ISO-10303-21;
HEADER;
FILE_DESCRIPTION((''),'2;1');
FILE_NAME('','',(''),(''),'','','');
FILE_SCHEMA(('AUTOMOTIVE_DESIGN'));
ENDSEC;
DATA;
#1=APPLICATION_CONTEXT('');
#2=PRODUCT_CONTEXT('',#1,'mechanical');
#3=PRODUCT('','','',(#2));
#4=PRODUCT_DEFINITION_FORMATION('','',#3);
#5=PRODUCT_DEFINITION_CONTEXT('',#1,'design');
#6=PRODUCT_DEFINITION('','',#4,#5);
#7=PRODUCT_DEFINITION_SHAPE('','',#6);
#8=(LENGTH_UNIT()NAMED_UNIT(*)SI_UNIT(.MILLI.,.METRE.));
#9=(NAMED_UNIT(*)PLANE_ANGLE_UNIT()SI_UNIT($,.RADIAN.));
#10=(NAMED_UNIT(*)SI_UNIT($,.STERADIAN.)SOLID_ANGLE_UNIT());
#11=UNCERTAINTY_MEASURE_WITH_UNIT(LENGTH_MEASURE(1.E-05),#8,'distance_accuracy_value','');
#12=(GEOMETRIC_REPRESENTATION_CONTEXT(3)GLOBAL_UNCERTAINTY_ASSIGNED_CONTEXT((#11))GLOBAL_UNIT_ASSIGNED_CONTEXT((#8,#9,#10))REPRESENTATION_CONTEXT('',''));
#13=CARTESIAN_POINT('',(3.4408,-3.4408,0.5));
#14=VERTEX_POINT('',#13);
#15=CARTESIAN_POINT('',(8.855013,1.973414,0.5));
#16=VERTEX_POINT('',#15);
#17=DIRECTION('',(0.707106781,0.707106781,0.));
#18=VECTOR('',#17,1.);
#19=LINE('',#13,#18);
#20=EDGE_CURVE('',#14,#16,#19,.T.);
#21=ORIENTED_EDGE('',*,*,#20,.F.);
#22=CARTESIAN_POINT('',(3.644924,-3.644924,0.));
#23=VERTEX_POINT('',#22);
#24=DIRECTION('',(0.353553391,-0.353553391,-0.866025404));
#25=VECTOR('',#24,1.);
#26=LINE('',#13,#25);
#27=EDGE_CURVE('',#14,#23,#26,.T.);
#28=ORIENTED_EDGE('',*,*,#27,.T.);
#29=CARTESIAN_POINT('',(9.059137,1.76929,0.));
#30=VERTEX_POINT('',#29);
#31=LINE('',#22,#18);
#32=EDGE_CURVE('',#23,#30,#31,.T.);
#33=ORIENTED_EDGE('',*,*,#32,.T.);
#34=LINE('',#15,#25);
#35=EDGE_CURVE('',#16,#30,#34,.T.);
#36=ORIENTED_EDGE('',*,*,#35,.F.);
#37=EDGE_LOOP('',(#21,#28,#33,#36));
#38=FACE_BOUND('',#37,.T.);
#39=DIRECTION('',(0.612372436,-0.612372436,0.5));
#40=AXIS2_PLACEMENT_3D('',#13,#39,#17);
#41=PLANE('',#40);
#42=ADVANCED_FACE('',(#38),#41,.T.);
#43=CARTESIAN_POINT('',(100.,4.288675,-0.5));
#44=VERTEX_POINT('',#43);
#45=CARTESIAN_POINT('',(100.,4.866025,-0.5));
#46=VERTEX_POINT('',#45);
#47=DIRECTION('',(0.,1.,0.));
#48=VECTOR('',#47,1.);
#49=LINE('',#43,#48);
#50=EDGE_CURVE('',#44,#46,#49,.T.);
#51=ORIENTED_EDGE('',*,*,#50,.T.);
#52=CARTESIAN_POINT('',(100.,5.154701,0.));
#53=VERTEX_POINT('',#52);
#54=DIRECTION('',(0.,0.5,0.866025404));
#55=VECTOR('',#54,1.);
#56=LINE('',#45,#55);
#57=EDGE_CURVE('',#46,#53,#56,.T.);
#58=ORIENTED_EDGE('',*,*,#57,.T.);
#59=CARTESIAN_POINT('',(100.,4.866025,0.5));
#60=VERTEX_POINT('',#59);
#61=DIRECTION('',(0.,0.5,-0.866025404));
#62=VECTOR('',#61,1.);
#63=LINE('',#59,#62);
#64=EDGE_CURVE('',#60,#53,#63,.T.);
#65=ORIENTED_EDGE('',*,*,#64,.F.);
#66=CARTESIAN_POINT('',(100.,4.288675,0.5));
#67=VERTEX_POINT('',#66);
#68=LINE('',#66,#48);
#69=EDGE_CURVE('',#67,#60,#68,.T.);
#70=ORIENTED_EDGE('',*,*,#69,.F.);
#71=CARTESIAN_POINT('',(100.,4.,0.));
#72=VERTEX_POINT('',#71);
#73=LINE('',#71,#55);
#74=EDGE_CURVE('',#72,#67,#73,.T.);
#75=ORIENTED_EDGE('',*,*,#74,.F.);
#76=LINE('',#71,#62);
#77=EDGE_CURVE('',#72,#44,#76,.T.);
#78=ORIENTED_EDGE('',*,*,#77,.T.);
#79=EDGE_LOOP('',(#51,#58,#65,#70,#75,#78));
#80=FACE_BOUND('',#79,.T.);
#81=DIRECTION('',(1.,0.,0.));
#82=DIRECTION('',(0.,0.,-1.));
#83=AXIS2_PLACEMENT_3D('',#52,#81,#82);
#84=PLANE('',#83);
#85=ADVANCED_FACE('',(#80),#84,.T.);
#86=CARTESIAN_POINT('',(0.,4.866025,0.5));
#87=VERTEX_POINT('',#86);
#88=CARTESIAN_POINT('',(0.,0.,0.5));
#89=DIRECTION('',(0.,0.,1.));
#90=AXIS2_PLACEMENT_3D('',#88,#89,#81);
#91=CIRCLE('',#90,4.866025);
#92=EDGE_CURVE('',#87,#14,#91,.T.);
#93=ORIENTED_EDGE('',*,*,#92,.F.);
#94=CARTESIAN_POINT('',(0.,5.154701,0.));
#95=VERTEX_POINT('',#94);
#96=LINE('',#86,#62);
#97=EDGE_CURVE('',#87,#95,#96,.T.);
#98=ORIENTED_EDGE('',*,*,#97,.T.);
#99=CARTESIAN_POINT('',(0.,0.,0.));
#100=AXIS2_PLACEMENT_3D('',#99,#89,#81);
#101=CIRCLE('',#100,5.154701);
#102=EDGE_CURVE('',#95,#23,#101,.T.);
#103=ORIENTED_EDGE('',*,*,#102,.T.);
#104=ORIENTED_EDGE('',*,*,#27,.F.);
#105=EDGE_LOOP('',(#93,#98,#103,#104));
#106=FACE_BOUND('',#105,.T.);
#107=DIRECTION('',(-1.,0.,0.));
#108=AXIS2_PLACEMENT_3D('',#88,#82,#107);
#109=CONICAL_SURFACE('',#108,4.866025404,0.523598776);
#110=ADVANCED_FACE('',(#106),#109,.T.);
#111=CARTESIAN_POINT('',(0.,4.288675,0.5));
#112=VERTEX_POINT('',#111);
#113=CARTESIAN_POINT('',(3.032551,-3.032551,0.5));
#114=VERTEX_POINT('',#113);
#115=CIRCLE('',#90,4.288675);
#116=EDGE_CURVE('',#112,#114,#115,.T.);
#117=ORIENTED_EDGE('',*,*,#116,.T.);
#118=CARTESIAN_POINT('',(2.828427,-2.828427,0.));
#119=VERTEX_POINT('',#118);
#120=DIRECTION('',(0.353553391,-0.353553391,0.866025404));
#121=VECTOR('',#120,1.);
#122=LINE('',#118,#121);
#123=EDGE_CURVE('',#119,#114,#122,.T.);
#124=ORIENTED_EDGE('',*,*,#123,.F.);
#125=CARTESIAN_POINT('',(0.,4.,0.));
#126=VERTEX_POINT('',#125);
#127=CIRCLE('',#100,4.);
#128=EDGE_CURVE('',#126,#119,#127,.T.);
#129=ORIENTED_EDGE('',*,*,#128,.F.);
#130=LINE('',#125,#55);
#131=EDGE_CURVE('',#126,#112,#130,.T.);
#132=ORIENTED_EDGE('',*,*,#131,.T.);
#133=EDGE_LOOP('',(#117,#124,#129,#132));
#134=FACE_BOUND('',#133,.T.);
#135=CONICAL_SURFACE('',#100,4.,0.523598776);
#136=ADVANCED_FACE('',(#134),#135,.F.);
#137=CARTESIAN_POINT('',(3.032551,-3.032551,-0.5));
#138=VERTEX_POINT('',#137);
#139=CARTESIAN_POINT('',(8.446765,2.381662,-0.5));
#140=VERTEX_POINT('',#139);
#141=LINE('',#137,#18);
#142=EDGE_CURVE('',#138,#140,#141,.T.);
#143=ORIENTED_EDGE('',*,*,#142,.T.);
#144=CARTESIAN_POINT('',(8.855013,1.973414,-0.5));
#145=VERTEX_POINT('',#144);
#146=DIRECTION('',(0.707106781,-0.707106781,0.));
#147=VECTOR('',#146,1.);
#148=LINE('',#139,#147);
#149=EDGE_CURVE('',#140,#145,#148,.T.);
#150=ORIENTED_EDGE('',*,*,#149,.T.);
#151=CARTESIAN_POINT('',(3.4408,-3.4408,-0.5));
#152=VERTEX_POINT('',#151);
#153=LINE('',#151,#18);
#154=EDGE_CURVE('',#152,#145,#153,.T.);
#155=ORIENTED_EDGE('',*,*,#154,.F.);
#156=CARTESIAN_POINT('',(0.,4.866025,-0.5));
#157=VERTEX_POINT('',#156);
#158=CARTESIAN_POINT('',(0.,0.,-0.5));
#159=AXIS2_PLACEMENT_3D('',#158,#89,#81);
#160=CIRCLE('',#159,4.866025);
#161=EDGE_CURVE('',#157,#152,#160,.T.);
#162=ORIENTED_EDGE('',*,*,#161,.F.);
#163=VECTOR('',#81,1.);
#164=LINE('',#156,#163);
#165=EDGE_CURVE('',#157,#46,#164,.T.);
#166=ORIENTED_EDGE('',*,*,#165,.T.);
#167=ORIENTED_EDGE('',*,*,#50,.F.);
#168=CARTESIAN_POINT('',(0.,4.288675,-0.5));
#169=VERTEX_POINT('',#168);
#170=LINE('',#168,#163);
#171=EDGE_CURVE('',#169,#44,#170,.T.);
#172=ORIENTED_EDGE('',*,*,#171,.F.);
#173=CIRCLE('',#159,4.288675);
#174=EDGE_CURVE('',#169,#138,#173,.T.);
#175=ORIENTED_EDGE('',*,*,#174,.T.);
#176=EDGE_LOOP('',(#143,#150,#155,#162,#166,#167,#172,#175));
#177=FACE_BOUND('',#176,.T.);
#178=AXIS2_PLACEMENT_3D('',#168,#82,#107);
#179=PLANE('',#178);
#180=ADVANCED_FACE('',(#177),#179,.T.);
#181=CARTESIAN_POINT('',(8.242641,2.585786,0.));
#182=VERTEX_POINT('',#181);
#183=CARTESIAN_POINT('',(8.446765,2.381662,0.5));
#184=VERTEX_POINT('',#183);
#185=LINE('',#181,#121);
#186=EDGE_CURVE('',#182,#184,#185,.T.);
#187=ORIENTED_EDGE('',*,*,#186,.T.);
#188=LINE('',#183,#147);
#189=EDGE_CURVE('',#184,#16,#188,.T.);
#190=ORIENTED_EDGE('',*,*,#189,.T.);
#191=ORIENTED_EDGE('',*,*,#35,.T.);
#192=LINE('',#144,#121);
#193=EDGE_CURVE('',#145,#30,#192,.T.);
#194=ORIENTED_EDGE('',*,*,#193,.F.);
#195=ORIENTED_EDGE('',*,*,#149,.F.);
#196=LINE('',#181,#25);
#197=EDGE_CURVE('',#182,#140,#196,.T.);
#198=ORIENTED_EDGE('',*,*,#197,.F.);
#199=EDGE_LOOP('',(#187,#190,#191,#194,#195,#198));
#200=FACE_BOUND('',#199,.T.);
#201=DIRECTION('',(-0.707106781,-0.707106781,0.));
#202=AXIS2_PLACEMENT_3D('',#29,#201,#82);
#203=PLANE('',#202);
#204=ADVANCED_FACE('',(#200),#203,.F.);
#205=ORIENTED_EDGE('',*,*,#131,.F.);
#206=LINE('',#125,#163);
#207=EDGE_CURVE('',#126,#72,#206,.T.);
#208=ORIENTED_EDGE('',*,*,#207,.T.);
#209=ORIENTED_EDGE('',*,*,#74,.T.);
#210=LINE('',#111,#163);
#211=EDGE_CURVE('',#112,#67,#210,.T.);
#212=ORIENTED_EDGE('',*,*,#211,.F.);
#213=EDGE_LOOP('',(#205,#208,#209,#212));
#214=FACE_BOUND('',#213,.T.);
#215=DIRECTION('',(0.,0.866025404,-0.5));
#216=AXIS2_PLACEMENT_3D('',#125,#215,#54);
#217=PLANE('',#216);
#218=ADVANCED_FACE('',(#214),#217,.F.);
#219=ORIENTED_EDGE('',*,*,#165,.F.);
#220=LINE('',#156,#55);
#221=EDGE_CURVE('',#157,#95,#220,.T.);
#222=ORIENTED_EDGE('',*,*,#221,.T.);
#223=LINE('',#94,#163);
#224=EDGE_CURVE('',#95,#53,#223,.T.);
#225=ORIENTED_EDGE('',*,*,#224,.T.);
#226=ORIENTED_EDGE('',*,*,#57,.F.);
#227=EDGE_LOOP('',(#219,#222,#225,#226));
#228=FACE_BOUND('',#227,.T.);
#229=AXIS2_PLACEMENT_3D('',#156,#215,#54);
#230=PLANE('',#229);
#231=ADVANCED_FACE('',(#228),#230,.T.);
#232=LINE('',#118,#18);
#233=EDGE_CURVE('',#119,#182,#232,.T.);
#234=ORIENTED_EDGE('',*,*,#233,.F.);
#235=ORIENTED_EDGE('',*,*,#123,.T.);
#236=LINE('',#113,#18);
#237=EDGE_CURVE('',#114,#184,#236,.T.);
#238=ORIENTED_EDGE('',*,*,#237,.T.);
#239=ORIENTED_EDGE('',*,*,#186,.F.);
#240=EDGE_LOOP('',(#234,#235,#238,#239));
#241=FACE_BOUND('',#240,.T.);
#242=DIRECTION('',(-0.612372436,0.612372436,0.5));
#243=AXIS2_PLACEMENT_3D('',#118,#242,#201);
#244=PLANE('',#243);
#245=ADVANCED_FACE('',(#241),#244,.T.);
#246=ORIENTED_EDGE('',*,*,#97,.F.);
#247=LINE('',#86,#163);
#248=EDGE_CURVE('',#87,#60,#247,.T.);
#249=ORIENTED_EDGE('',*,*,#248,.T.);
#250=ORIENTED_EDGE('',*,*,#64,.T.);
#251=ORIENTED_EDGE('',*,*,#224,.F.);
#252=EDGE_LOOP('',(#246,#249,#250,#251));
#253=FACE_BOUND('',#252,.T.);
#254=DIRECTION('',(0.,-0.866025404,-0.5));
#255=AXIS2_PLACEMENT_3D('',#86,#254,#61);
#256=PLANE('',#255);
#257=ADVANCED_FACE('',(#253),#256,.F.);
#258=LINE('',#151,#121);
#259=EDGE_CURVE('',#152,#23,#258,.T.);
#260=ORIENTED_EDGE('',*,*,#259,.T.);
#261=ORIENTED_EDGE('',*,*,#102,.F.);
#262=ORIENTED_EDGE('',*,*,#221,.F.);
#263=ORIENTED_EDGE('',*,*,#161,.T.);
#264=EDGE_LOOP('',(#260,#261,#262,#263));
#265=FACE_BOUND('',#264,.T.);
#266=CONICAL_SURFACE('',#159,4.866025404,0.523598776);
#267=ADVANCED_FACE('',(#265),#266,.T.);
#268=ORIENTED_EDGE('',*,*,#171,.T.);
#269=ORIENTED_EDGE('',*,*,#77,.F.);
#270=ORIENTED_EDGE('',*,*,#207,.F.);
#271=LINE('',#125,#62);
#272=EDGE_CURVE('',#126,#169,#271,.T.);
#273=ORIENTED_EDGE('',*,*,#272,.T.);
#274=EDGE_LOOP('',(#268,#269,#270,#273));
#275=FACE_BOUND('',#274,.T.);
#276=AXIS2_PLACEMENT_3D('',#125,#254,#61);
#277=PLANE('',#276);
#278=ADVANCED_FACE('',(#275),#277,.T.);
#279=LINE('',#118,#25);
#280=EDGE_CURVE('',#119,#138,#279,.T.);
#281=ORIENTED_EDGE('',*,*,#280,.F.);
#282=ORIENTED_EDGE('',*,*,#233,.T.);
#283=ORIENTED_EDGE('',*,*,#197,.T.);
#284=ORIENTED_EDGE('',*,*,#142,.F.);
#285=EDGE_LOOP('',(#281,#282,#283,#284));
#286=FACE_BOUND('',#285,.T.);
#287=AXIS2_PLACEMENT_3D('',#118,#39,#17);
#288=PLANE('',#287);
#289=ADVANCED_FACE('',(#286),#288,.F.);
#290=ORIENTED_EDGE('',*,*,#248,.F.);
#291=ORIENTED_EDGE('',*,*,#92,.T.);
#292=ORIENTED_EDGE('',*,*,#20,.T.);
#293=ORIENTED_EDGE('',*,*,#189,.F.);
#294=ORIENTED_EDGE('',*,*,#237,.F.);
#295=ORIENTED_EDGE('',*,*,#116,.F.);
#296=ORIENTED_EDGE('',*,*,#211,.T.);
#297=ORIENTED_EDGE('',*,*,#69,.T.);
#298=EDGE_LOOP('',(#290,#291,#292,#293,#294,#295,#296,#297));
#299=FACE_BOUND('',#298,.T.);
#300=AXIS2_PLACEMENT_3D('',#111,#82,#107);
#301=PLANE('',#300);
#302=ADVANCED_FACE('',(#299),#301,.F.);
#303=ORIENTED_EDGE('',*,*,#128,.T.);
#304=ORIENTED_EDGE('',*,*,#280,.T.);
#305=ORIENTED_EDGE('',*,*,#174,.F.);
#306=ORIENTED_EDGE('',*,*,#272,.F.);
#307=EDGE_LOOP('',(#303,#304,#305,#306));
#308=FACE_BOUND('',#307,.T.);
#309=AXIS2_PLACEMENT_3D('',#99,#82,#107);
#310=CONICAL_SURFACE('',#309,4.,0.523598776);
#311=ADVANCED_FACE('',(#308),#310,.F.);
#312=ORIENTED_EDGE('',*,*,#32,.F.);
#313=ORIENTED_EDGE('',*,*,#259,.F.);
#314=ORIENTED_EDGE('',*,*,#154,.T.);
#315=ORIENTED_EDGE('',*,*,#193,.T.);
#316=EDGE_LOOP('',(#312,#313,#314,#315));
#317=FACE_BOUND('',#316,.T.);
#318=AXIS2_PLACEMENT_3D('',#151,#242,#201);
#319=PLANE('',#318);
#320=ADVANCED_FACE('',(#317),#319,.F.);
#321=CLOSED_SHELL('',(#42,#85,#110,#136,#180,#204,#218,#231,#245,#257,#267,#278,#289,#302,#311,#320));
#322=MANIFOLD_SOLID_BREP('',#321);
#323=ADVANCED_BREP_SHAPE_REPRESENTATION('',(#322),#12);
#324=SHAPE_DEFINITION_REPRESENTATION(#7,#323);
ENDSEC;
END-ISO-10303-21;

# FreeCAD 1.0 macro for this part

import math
import FreeCAD as App
import Part
import Sketcher
from FreeCAD import Vector
Q = App.Units.Quantity

doc = App.newDocument("Part")
body = doc.addObject("PartDesign::Body", "Body")

# Sketch on YZ plane
sketch1 = body.newObject("Sketcher::SketchObject", "Sketch")
sketch1.AttachmentSupport = (doc.getObject("YZ_Plane"), [""])
sketch1.MapMode = "FlatFace"
sketch1.AttachmentOffset = App.Placement(Vector(0, 0, 100), App.Rotation())
sketch1.addGeometry([
    Part.LineSegment(Vector(5.2, 0, 0), Vector(4.9, -0.5, 0)),  # 0
    Part.LineSegment(Vector(4.9, -0.5, 0), Vector(4.3, -0.5, 0)),  # 1
    Part.LineSegment(Vector(4.3, -0.5, 0), Vector(4, 0, 0)),  # 2
    Part.LineSegment(Vector(4, 0, 0), Vector(4.3, 0.5, 0)),  # 3
    Part.LineSegment(Vector(4.3, 0.5, 0), Vector(4.9, 0.5, 0)),  # 4
    Part.LineSegment(Vector(4.9, 0.5, 0), Vector(5.2, 0, 0)),  # 5
], False)
sketch1.addConstraint([
    Sketcher.Constraint("Coincident", 0, 2, 1, 1),
    Sketcher.Constraint("Coincident", 1, 2, 2, 1),
    Sketcher.Constraint("Coincident", 2, 2, 3, 1),
    Sketcher.Constraint("Coincident", 3, 2, 4, 1),
    Sketcher.Constraint("Coincident", 4, 2, 5, 1),
    Sketcher.Constraint("Coincident", 5, 2, 0, 1),
    Sketcher.Constraint("Horizontal", 1),
    Sketcher.Constraint("Horizontal", 4),
    Sketcher.Constraint("Symmetric", 1, 2, 3, 2, -1),
    Sketcher.Constraint("PointOnObject", 2, 2, -1),
    Sketcher.Constraint("PointOnObject", 5, 2, -1),
    Sketcher.Constraint("Parallel", 0, 3),
    Sketcher.Constraint("Parallel", 2, 5),
    Sketcher.Constraint("Angle", 0, Q("-120 deg")),
    Sketcher.Constraint("DistanceX", -1, 1, 2, 2, Q("4 mm")),
    Sketcher.Constraint("DistanceY", 1, 2, 3, 2, Q("1 mm")),
    Sketcher.Constraint("DistanceX", 1, 2, 1, 1, Q("0.57735 mm")),
])

# Sketch on XY plane
sketch2 = body.newObject("Sketcher::SketchObject", "Sketch001")
sketch2.AttachmentSupport = (doc.getObject("XY_Plane"), [""])
sketch2.MapMode = "FlatFace"
sketch2.addGeometry([
    Part.LineSegment(Vector(100, 4, 0), Vector(0, 4, 0)),
    Part.ArcOfCircle(Part.Circle(Vector(0, 0, 0), Vector(0, 0, 1), 4), math.radians(90), math.radians(315)),
    Part.LineSegment(Vector(2.8, -2.8, 0), Vector(8.2, 2.6, 0)),
], False)
sketch2.addConstraint([
    Sketcher.Constraint("Tangent", 0, 2, 1, 1),
    Sketcher.Constraint("Tangent", 1, 2, 2, 1),
    Sketcher.Constraint("Horizontal", 0),
    Sketcher.Constraint("Coincident", 1, 3, -1, 1),
    Sketcher.Constraint("Radius", 1, Q("4 mm")),
    Sketcher.Constraint("DistanceX", 0, 2, 0, 1, Q("100 mm")),
    Sketcher.Constraint("Angle", 2, Q("45 deg")),
    Sketcher.Constraint("DistanceX", -1, 1, 2, 2, Q("8.242641 mm")),
])
doc.recompute()

additivepipe = body.newObject("PartDesign::AdditivePipe", "AdditivePipe")
additivepipe.Profile = sketch1
additivepipe.Spine = (sketch2, ["Edge1", "Edge2", "Edge3"])

doc.recompute()
